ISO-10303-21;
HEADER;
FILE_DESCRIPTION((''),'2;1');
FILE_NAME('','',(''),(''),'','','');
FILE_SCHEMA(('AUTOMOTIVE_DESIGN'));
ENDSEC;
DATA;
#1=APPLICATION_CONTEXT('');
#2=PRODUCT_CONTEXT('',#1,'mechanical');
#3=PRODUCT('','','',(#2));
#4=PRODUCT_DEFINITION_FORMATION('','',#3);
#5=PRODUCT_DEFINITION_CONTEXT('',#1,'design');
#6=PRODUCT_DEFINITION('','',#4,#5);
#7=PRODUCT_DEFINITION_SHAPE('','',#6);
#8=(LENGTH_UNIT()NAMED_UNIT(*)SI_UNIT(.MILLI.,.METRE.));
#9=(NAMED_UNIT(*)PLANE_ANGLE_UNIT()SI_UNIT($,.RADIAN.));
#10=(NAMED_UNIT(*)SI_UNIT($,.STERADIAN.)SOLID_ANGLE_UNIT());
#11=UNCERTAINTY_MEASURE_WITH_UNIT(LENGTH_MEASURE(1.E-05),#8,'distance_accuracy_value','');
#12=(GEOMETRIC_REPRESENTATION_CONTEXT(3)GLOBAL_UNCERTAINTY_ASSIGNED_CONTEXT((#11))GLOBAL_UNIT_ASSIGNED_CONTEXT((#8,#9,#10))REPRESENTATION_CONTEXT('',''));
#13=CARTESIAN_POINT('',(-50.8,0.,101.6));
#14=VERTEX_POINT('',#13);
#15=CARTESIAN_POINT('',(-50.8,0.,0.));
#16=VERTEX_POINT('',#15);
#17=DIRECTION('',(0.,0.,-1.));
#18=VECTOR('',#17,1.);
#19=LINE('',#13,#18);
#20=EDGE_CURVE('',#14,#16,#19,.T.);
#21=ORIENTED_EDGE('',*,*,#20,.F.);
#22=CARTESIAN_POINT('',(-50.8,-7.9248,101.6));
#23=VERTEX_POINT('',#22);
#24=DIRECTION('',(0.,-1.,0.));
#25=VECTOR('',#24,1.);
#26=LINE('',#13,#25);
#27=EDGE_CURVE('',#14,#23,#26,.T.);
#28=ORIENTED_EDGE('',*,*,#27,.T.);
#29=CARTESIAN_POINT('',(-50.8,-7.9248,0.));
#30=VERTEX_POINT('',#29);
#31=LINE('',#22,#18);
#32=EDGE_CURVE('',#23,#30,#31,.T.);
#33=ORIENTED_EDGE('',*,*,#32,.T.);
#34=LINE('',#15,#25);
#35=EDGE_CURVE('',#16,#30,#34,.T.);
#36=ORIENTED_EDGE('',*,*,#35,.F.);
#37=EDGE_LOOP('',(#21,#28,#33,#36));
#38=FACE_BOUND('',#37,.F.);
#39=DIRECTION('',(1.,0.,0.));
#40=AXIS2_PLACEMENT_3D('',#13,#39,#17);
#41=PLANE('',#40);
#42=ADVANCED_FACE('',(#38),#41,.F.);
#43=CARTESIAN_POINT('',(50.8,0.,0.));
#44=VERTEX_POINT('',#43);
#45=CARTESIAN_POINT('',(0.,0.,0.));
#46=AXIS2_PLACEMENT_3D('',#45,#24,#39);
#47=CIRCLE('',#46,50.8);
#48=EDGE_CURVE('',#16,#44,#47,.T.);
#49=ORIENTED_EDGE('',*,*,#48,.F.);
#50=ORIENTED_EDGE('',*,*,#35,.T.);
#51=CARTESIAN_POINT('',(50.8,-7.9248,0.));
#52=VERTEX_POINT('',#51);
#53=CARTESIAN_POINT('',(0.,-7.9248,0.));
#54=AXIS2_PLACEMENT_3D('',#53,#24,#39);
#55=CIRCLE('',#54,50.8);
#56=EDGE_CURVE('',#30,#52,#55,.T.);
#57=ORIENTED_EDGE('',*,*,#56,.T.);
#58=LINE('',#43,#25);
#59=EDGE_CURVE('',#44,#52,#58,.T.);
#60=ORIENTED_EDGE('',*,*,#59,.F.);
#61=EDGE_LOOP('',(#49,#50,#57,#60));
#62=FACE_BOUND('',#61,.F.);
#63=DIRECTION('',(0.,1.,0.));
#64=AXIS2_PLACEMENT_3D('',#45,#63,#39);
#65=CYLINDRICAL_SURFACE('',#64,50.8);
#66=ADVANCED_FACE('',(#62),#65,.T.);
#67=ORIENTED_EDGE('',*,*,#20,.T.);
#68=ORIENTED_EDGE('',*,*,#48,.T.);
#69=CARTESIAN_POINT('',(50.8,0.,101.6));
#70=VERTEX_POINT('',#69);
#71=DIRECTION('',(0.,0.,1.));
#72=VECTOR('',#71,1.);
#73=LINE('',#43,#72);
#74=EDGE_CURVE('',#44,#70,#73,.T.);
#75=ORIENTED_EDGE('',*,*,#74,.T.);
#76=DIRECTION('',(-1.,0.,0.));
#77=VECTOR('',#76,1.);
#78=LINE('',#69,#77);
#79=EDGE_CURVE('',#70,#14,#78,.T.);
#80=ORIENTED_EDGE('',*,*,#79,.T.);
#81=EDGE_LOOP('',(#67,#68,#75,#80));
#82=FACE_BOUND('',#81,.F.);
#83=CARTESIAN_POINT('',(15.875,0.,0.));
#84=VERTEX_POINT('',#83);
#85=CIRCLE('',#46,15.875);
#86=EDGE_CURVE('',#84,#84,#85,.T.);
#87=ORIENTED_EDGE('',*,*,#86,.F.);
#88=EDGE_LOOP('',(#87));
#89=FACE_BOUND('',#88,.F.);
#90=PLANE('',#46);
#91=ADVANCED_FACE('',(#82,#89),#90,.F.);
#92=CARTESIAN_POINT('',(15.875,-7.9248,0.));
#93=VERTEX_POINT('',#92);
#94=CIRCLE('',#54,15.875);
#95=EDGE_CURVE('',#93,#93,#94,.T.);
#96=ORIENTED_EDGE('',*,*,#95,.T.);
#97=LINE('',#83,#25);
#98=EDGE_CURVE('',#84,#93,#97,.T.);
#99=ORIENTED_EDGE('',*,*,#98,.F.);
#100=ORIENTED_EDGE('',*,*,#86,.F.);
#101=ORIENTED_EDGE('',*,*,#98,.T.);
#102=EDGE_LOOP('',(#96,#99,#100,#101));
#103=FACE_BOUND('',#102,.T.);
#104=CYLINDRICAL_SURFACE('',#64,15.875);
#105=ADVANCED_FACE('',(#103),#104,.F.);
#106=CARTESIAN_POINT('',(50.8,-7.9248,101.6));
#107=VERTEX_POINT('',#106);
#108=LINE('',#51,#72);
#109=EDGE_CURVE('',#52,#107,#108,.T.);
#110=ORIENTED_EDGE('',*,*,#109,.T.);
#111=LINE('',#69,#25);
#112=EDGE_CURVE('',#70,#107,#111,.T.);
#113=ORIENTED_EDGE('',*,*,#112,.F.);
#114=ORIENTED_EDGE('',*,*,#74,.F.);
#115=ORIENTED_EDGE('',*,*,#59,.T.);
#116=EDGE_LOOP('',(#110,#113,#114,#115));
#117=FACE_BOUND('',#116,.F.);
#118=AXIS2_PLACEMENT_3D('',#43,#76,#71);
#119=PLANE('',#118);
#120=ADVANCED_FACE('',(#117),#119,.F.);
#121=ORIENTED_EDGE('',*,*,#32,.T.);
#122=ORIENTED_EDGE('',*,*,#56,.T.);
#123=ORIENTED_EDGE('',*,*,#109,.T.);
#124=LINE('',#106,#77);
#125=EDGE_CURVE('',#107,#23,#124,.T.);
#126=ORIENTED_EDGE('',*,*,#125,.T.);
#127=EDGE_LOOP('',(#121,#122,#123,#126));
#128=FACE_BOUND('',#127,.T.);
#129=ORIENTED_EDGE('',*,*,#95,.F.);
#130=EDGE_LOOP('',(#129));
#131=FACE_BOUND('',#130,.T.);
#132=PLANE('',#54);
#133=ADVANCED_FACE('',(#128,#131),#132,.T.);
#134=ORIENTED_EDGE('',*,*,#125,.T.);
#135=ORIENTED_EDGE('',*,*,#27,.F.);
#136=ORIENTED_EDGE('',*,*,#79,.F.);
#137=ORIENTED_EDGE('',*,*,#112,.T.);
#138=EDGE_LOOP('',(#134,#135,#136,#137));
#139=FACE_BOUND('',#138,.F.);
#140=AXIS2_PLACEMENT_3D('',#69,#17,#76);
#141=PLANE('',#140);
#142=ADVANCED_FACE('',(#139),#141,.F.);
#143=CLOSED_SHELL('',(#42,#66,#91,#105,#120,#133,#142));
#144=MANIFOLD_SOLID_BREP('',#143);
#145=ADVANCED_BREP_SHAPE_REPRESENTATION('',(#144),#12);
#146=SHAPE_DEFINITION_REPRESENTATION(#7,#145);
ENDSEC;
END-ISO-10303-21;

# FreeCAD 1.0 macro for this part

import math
import FreeCAD as App
import Part
import Sketcher
Q = App.Units.Quantity

doc = App.newDocument("Part")
params = doc.addObject("Spreadsheet::Sheet", "Params")
for row, (alias, value) in enumerate([
    ("sketch1_radius", "2 in"),
    ("sketch1_diameter", "1.25 in"),
    ("pad1_length", "0.312 in"),
], start=1):
    params.set(f"A{row}", alias)
    params.set(f"B{row}", "=" + value)
    params.setAlias(f"B{row}", alias)

body = doc.addObject("PartDesign::Body", "Body")

# Sketch on XZ plane
sketch1 = body.newObject("Sketcher::SketchObject", "Sketch")
sketch1.AttachmentSupport = (doc.getObject("XZ_Plane"), [""])
sketch1.MapMode = "FlatFace"
sketch1.addGeometry(Part.ArcOfCircle(Part.Circle(App.Vector(0, 0, 0), App.Vector(0, 0, 1), 51), math.radians(180), math.radians(360)), False)
sketch1.addGeometry(Part.LineSegment(App.Vector(51, 0, 0), App.Vector(51, 102, 0)), False)
sketch1.addGeometry(Part.LineSegment(App.Vector(51, 102, 0), App.Vector(-51, 102, 0)), False)
sketch1.addGeometry(Part.LineSegment(App.Vector(-51, 102, 0), App.Vector(-51, 0, 0)), False)
sketch1.addGeometry(Part.Circle(App.Vector(0, 0, 0), App.Vector(0, 0, 1), 16), False)
sketch1.addConstraint(Sketcher.Constraint("Tangent", 0, 2, 1, 1))
sketch1.addConstraint(Sketcher.Constraint("Coincident", 1, 2, 2, 1))
sketch1.addConstraint(Sketcher.Constraint("Coincident", 2, 2, 3, 1))
sketch1.addConstraint(Sketcher.Constraint("Tangent", 3, 2, 0, 1))
sketch1.addConstraint(Sketcher.Constraint("Vertical", 1))
sketch1.addConstraint(Sketcher.Constraint("Horizontal", 2))
sketch1.addConstraint(Sketcher.Constraint("Vertical", 3))
sketch1.addConstraint(Sketcher.Constraint("Coincident", 0, 3, -1, 1))
sketch1.addConstraint(Sketcher.Constraint("Coincident", 4, 3, -1, 1))
sketch1.addConstraint(Sketcher.Constraint("Equal", 2, 1))
sketch1.addConstraint(Sketcher.Constraint("Radius", 0, Q("2 in")))
sketch1.addConstraint(Sketcher.Constraint("Diameter", 4, Q("1.25 in")))
sketch1.setExpression("Constraints[10]", "Params.sketch1_radius")
sketch1.setExpression("Constraints[11]", "Params.sketch1_diameter")
pad1 = body.newObject("PartDesign::Pad", "Pad")
pad1.Profile = sketch1
pad1.setExpression("Length", "Params.pad1_length")

doc.recompute()
